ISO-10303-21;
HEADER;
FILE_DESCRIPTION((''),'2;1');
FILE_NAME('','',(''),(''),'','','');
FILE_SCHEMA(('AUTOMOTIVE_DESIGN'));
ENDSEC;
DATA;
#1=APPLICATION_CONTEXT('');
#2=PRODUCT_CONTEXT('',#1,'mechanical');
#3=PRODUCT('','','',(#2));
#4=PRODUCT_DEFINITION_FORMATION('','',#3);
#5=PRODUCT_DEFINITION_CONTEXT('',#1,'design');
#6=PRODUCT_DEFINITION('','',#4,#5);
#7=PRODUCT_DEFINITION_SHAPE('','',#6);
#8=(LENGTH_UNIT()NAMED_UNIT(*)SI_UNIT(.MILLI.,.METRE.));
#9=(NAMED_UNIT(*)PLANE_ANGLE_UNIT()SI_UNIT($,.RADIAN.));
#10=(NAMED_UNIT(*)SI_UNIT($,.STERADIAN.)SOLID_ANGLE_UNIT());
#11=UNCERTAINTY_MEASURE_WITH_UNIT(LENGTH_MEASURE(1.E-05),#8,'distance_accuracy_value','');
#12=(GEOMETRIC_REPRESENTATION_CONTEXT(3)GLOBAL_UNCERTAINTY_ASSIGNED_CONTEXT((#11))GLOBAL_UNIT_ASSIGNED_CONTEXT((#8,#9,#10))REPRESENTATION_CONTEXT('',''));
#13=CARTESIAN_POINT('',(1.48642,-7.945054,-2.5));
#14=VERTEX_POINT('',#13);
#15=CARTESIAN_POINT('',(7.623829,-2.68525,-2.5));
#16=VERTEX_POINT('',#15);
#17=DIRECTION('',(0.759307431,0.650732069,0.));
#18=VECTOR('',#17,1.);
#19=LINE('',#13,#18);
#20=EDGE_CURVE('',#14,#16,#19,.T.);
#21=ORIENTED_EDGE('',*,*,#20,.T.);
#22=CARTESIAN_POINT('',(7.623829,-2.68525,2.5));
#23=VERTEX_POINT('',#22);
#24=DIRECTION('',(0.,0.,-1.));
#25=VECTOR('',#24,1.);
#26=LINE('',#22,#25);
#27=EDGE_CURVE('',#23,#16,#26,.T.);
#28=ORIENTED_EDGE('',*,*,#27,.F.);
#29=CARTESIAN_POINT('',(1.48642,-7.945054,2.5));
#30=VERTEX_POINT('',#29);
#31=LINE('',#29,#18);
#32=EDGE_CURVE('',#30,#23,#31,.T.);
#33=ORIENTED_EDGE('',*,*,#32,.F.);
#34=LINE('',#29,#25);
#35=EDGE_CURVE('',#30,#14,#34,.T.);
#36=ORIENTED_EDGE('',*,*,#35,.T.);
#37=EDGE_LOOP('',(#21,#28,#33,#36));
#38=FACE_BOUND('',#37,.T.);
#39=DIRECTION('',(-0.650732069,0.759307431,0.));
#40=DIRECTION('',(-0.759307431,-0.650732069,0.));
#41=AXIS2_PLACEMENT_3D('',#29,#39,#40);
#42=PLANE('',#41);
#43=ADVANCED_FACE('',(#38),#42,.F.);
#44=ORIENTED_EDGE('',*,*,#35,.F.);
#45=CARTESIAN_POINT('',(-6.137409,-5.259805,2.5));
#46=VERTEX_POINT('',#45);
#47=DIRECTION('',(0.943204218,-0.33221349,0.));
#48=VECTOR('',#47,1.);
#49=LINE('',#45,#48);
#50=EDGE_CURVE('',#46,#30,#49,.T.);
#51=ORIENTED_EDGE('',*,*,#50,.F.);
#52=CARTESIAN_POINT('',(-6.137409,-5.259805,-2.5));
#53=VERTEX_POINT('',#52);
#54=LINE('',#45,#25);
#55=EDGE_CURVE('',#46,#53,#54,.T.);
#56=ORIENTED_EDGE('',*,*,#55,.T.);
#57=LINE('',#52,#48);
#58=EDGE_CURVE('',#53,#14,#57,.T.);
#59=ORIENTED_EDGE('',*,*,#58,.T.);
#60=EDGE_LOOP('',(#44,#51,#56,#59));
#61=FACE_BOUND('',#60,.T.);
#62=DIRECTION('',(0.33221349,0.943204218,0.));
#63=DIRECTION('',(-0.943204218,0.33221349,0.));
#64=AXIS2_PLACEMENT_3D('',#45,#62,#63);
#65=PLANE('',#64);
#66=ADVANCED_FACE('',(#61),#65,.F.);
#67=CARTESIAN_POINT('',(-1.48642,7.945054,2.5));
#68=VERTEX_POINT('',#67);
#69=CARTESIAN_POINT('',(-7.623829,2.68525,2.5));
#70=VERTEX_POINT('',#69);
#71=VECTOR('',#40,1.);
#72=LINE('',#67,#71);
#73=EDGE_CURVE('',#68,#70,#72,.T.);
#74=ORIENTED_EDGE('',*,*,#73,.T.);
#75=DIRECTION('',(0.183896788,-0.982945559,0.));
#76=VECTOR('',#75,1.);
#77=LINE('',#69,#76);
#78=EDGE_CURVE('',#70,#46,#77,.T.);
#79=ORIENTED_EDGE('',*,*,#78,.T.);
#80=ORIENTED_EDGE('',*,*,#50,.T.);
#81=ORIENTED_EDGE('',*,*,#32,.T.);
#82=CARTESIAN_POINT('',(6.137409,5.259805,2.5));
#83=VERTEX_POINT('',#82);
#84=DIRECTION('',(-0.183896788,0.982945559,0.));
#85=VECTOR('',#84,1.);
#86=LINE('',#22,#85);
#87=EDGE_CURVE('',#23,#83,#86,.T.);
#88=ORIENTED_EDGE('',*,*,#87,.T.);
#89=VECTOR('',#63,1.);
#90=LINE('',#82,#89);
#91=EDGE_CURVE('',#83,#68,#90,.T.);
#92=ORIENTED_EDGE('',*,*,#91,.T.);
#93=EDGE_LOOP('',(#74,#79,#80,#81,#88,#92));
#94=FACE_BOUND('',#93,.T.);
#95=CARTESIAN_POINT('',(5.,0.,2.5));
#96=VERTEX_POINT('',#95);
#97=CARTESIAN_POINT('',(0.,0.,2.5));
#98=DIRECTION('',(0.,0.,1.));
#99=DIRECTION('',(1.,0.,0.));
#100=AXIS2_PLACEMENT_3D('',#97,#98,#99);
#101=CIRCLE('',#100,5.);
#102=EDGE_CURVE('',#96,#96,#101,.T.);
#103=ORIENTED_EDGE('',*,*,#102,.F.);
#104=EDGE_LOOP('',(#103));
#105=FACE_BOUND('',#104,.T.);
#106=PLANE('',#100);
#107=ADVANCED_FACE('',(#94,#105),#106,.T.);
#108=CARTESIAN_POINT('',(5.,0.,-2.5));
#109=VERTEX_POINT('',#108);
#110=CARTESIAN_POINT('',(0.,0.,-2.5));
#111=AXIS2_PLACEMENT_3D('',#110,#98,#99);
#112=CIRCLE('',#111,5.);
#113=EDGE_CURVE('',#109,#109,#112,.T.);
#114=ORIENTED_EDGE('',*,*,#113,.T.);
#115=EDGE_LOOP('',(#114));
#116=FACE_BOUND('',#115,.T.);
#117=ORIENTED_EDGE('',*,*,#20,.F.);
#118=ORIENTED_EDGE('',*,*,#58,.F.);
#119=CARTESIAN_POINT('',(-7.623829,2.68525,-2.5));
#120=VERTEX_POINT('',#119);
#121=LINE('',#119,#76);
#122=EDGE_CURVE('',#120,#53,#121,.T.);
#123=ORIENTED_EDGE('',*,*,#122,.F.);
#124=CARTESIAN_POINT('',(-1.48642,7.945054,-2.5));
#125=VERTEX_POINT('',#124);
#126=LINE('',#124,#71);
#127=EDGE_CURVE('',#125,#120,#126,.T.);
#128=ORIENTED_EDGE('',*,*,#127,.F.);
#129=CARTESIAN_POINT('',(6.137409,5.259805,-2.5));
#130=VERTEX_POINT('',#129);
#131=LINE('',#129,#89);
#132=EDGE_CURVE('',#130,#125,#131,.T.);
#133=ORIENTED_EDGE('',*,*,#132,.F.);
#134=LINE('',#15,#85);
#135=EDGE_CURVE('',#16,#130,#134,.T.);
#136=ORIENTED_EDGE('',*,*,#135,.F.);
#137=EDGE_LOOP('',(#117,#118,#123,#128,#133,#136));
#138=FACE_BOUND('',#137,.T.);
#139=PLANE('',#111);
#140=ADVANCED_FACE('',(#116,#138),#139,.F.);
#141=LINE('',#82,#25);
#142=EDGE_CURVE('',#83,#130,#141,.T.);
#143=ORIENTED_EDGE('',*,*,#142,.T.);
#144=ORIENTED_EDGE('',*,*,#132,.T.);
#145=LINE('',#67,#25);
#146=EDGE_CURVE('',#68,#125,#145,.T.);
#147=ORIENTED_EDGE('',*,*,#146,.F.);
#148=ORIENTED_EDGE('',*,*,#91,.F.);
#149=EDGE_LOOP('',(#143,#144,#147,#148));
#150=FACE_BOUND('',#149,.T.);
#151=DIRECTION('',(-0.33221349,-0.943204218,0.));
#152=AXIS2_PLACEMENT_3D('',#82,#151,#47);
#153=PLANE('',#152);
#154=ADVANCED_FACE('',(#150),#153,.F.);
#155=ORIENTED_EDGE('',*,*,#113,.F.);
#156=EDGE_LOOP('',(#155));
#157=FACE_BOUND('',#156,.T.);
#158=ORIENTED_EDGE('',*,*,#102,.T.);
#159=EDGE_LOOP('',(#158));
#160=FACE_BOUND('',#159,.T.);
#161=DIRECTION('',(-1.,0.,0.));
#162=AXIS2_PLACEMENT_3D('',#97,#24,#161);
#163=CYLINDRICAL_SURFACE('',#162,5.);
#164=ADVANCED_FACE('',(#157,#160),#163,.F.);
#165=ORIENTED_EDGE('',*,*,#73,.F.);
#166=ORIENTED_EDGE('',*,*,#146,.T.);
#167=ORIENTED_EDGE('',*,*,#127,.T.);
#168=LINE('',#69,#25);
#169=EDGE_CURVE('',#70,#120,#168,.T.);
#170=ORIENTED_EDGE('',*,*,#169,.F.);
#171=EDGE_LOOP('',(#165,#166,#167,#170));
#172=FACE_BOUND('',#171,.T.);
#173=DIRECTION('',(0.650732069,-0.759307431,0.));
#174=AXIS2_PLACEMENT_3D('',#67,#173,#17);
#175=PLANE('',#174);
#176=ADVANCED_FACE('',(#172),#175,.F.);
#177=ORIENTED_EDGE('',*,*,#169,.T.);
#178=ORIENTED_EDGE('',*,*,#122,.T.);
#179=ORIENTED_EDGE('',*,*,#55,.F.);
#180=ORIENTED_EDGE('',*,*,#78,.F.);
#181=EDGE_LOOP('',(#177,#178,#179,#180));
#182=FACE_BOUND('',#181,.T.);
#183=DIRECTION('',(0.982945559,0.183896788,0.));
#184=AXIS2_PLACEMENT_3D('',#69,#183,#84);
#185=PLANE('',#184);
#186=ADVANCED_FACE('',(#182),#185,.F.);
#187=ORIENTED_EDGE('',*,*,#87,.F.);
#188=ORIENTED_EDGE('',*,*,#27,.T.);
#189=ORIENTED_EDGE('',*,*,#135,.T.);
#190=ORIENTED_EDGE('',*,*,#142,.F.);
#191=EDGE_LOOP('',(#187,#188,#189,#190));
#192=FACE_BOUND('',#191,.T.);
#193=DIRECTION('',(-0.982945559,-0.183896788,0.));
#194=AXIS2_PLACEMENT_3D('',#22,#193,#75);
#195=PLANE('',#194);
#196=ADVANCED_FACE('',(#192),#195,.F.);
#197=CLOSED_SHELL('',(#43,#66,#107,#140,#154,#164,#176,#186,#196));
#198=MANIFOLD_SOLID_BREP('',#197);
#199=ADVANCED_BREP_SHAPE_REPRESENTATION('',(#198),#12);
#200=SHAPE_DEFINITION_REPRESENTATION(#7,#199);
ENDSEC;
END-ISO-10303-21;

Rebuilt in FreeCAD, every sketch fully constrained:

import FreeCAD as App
import Part
import Sketcher
from FreeCAD import Vector
Q = App.Units.Quantity


def add_polygon(sketch, points):
    """Adds a closed chain of lines whose ends are joined by coincident constraints."""
    first, n = sketch.GeometryCount, len(points)
    for a, b in zip(points, points[1:] + points[:1]):
        sketch.addGeometry(Part.LineSegment(App.Vector(*a, 0), App.Vector(*b, 0)), False)
    for i in range(n):
        sketch.addConstraint(Sketcher.Constraint("Coincident", first + i, 2, first + (i + 1) % n, 1))

doc = App.newDocument("Part")
params = doc.addObject("Spreadsheet::Sheet", "Params")
for row, (alias, value) in enumerate([
    ("sketch1_diameter", "10 mm"),
    ("pad1_length", "5 mm"),
], start=1):
    params.set(f"A{row}", alias)
    params.set(f"B{row}", "=" + value)
    params.setAlias(f"B{row}", alias)

body = doc.addObject("PartDesign::Body", "Body")

sketch1 = body.newObject("Sketcher::SketchObject", "Sketch")
sketch1.AttachmentSupport = (doc.getObject("XY_Plane"), [""])
sketch1.MapMode = "FlatFace"
add_polygon(sketch1, [(1, -8), (8, -3), (6, 5), (-1, 8), (-8, 3), (-6, -5)])
sketch1.addGeometry(Part.Circle(Vector(0, 0, 0), Vector(0, 0, 1), 5), False)
sketch1.addConstraint([
    Sketcher.Constraint("Coincident", 6, 3, -1, 1),
    Sketcher.Constraint("Symmetric", 0, 2, 3, 2, -1, 1),
    Sketcher.Constraint("Symmetric", 1, 2, 4, 2, -1, 1),
    Sketcher.Constraint("Symmetric", 2, 2, 5, 2, -1, 1),
    Sketcher.Constraint("Equal", 0, 1),
    Sketcher.Constraint("Equal", 1, 2),
    Sketcher.Constraint("Diameter", 6, Q("10 mm")),
    Sketcher.Constraint("DistanceY", 0, 2, 3, 2, Q("5.370499 mm")),
    Sketcher.Constraint("DistanceX", -1, 1, 0, 2, Q("7.623829 mm")),
    Sketcher.Constraint("DistanceX", -1, 1, 1, 2, Q("6.137409 mm")),
    Sketcher.Constraint("DistanceX", 2, 2, -1, 1, Q("1.48642 mm")),
])
sketch1.setExpression("Constraints[12]", "Params.sketch1_diameter")
pad1 = body.newObject("PartDesign::Pad", "Pad")
pad1.Profile = sketch1
pad1.setExpression("Length", "Params.pad1_length")
pad1.Midplane = True

doc.recompute()
